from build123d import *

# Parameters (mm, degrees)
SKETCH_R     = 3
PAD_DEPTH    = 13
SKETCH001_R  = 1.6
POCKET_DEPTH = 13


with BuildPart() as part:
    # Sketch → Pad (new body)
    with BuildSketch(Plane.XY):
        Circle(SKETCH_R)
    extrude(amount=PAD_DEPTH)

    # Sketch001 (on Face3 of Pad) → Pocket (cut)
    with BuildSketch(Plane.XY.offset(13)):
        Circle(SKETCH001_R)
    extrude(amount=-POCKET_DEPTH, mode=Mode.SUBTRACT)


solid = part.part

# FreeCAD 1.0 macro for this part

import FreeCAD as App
import Part
import Sketcher

doc = App.newDocument("Part")
body = doc.addObject("PartDesign::Body", "Body")

# Sketch on XY plane
sketch1 = body.newObject("Sketcher::SketchObject", "Sketch")
sketch1.AttachmentSupport = (doc.getObject("XY_Plane"), [""])
sketch1.MapMode = "FlatFace"
sketch1.addGeometry(Part.Circle(App.Vector(0, 0, 0), App.Vector(0, 0, 1), 3), False)
sketch1.addConstraint(Sketcher.Constraint("Coincident", 0, 3, -1, 1))
sketch1.addConstraint(Sketcher.Constraint("Diameter", 0, 6.0))
pad1 = body.newObject("PartDesign::Pad", "Pad")
pad1.Profile = sketch1
pad1.Length = 13

# Sketch on XY plane
sketch2 = body.newObject("Sketcher::SketchObject", "Sketch001")
sketch2.AttachmentSupport = (doc.getObject("XY_Plane"), [""])
sketch2.MapMode = "FlatFace"
sketch2.AttachmentOffset = App.Placement(App.Vector(0, 0, 13), App.Rotation())
sketch2.addGeometry(Part.Circle(App.Vector(0, 0, 0), App.Vector(0, 0, 1), 1.6), False)
sketch2.addConstraint(Sketcher.Constraint("Coincident", 0, 3, -1, 1))
sketch2.addConstraint(Sketcher.Constraint("Diameter", 0, 3.2))
pocket1 = body.newObject("PartDesign::Pocket", "Pocket")
pocket1.Profile = sketch2
pocket1.Length = 13

doc.recompute()
